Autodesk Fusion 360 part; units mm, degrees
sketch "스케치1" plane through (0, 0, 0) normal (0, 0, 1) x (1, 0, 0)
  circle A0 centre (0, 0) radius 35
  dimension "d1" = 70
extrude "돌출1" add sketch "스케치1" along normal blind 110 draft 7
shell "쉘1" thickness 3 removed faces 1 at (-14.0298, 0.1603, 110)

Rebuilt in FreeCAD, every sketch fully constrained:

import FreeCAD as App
import Part
import Sketcher
from FreeCAD import Vector
Q = App.Units.Quantity


def faces_at(feature, points):
    """Names of the faces that lie closest to the given points."""
    faces = feature.Shape.Faces
    near = lambda p: min(range(len(faces)), key=lambda i: faces[i].distToShape(Part.Vertex(*p))[0])
    return sorted({f"Face{near(p) + 1}" for p in points})

doc = App.newDocument("Part")
body = doc.addObject("PartDesign::Body", "Body")

# Sketch on XY plane
sketch1 = body.newObject("Sketcher::SketchObject", "Sketch")
sketch1.AttachmentSupport = (doc.getObject("XY_Plane"), [""])
sketch1.MapMode = "FlatFace"
sketch1.addGeometry(Part.Circle(Vector(0, 0, 0), Vector(0, 0, 1), 35), False)
sketch1.addConstraint(Sketcher.Constraint("Coincident", 0, 3, -1, 1))
sketch1.addConstraint(Sketcher.Constraint("Diameter", 0, Q("70 mm")))
pad1 = body.newObject("PartDesign::Pad", "Pad")
pad1.Profile = sketch1
pad1.Length = 110
pad1.TaperAngle = 7
doc.recompute()

thickness = body.newObject("PartDesign::Thickness", "Thickness")
thickness.Base = (pad1, faces_at(pad1, [(-14.03, 0.16, 110)]))
thickness.Value = 3
thickness.Reversed = True
thickness.Join = "Intersection"

doc.recompute()
